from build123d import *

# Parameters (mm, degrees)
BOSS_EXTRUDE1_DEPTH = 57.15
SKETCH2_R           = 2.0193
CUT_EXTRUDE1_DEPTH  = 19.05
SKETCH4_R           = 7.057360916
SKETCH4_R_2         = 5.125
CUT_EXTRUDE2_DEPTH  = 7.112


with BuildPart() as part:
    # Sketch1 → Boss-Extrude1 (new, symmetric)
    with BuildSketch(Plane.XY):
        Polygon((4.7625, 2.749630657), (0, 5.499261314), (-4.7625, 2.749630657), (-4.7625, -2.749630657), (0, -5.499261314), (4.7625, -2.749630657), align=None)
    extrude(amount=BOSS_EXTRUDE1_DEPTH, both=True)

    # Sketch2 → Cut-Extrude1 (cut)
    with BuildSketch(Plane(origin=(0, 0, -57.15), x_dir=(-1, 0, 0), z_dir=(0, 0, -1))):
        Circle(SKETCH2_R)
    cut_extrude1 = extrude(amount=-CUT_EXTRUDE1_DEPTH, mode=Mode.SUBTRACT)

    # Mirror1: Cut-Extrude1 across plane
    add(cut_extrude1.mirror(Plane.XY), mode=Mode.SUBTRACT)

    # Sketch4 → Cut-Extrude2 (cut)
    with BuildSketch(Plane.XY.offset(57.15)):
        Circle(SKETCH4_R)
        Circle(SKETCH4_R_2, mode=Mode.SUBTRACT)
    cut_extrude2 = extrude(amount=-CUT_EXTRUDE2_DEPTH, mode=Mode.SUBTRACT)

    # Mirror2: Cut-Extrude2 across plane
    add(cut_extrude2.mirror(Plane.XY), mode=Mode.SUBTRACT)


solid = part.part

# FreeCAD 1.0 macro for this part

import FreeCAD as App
import Part
import Sketcher
from FreeCAD import Vector
Q = App.Units.Quantity

doc = App.newDocument("Part")
body = doc.addObject("PartDesign::Body", "Body")

sketch1 = body.newObject("Sketcher::SketchObject", "Sketch")
sketch1.AttachmentSupport = (doc.getObject("XY_Plane"), [""])
sketch1.MapMode = "FlatFace"
sketch1.addGeometry([
    Part.LineSegment(Vector(5, 3, 0), Vector(0, 5, 0)),
    Part.LineSegment(Vector(0, 5, 0), Vector(-5, 3, 0)),
    Part.LineSegment(Vector(-5, 3, 0), Vector(-5, -3, 0)),
    Part.LineSegment(Vector(-5, -3, 0), Vector(0, -5, 0)),
    Part.LineSegment(Vector(0, -5, 0), Vector(5, -3, 0)),
    Part.LineSegment(Vector(5, -3, 0), Vector(5, 3, 0)),
], False)
sketch1.addConstraint([
    Sketcher.Constraint("Coincident", 0, 2, 1, 1),
    Sketcher.Constraint("Coincident", 1, 2, 2, 1),
    Sketcher.Constraint("Coincident", 2, 2, 3, 1),
    Sketcher.Constraint("Coincident", 3, 2, 4, 1),
    Sketcher.Constraint("Coincident", 4, 2, 5, 1),
    Sketcher.Constraint("Coincident", 5, 2, 0, 1),
    Sketcher.Constraint("Vertical", 2),
    Sketcher.Constraint("Vertical", 5),
    Sketcher.Constraint("Symmetric", 0, 2, 3, 2, -1, 1),
    Sketcher.Constraint("Symmetric", 1, 2, 4, 2, -1, 1),
    Sketcher.Constraint("PointOnObject", 0, 2, -2),
    Sketcher.Constraint("Parallel", 0, 3),
    Sketcher.Constraint("Horizontal", 2, 2, 4, 2),
    Sketcher.Constraint("Angle", 0, Q("150 deg")),
    Sketcher.Constraint("DistanceX", 1, 2, -1, 1, Q("0.1875 in")),
    Sketcher.Constraint("DistanceY", 2, 2, 2, 1, 5.499261),
])
pad1 = body.newObject("PartDesign::Pad", "Pad")
pad1.Profile = sketch1
pad1.Length = Q("4.5 in")
pad1.Midplane = True

sketch2 = body.newObject("Sketcher::SketchObject", "Sketch001")
sketch2.AttachmentSupport = (doc.getObject("XY_Plane"), [""])
sketch2.MapMode = "FlatFace"
sketch2.AttachmentOffset = App.Placement(Vector(0, 0, -2.25 * 25.4), App.Rotation())
sketch2.addGeometry(Part.Circle(Vector(0, 0, 0), Vector(0, 0, 1), 2), False)
sketch2.addConstraint([
    Sketcher.Constraint("Coincident", 0, 3, -1, 1),
    Sketcher.Constraint("Diameter", 0, Q("0.159 in")),
])
pocket1 = body.newObject("PartDesign::Pocket", "Pocket")
pocket1.Profile = sketch2
pocket1.Length = Q("0.75 in")
pocket1.Reversed = True
doc.recompute()

mirrored = body.newObject("PartDesign::Mirrored", "Mirrored")
mirrored.Originals = [pocket1]
mirrored.MirrorPlane = (doc.getObject("XY_Plane"), [""])
body.Tip = mirrored

sketch3 = body.newObject("Sketcher::SketchObject", "Sketch002")
sketch3.AttachmentSupport = (doc.getObject("XY_Plane"), [""])
sketch3.MapMode = "FlatFace"
sketch3.AttachmentOffset = App.Placement(Vector(0, 0, 2.25 * 25.4), App.Rotation())
sketch3.addGeometry([
    Part.Circle(Vector(0, 0, 0), Vector(0, 0, 1), 7),
    Part.Circle(Vector(0, 0, 0), Vector(0, 0, 1), 5),
], False)
sketch3.addConstraint([
    Sketcher.Constraint("Coincident", 0, 3, -1, 1),
    Sketcher.Constraint("Coincident", 1, 3, -1, 1),
    Sketcher.Constraint("Diameter", 1, 10.25),
    Sketcher.Constraint("Diameter", 0, 14.114722),
])
pocket2 = body.newObject("PartDesign::Pocket", "Pocket001")
pocket2.Profile = sketch3
pocket2.Length = Q("0.28 in")
doc.recompute()

mirrored2 = body.newObject("PartDesign::Mirrored", "Mirrored001")
mirrored2.Originals = [pocket2]
mirrored2.MirrorPlane = (doc.getObject("XY_Plane"), [""])
body.Tip = mirrored2

doc.recompute()
